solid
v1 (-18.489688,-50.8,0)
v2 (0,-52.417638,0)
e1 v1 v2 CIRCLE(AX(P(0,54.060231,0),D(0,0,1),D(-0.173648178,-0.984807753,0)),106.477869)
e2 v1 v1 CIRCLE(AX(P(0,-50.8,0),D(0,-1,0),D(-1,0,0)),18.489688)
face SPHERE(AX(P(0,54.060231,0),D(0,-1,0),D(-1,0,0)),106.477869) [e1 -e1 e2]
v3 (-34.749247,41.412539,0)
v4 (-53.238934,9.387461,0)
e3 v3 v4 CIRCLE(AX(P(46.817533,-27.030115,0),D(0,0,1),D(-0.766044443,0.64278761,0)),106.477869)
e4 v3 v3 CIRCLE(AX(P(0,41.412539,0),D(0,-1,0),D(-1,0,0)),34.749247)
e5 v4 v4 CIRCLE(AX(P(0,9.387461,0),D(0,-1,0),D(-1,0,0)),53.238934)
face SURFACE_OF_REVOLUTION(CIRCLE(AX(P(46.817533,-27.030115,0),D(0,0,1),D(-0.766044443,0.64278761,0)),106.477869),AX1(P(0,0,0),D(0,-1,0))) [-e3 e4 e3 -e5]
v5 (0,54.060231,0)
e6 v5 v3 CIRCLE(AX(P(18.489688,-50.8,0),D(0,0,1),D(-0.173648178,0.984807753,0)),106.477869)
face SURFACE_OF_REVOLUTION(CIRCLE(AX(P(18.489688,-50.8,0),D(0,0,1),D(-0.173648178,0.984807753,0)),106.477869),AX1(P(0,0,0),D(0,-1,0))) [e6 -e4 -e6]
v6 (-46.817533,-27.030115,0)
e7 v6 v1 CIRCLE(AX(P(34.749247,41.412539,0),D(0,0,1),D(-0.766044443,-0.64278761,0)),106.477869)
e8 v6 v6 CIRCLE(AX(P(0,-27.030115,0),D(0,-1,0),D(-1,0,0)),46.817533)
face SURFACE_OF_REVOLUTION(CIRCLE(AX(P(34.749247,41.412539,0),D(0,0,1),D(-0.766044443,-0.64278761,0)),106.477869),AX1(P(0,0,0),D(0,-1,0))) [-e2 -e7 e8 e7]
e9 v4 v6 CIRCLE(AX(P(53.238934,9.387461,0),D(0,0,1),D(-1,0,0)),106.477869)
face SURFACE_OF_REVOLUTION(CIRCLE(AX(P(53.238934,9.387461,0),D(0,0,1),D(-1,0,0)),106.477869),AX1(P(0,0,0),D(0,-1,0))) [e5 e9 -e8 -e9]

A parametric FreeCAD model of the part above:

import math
import FreeCAD as App
import Part
import Sketcher

V = App.Vector
Q = App.Units.Quantity

doc = App.newDocument("Part")
body = doc.addObject("PartDesign::Body", "Body")

sketch1 = doc.addObject("Sketcher::SketchObject", "Sketch")
body.addObject(sketch1)
sketch1.AttachmentSupport = (doc.XY_Plane, [""])
sketch1.MapMode = "FlatFace"
sketch1.addGeometry([
    Part.ArcOfCircle(Part.Circle(V(18, -51, 0), V(0, 0, 1), 106), math.radians(100), math.radians(120)),
    Part.ArcOfCircle(Part.Circle(V(47, -27, 0), V(0, 0, 1), 106), math.radians(140), math.radians(160)),
    Part.ArcOfCircle(Part.Circle(V(53, 9, 0), V(0, 0, 1), 106), math.radians(180), math.radians(200)),
    Part.ArcOfCircle(Part.Circle(V(35, 41, 0), V(0, 0, 1), 106), math.radians(-140), math.radians(-120)),
    Part.ArcOfCircle(Part.Circle(V(0, 54, 0), V(0, 0, 1), 106), math.radians(-100), math.radians(-90)),
    Part.LineSegment(V(0, -52, 0), V(0, 54, 0)),
], False)
sketch1.addConstraint([
    Sketcher.Constraint("Coincident", 0, 2, 1, 1),
    Sketcher.Constraint("Coincident", 1, 2, 2, 1),
    Sketcher.Constraint("Coincident", 2, 2, 3, 1),
    Sketcher.Constraint("Coincident", 3, 2, 4, 1),
    Sketcher.Constraint("Coincident", 4, 2, 5, 1),
    Sketcher.Constraint("Coincident", 5, 2, 0, 1),
    Sketcher.Constraint("Vertical", 5),
    Sketcher.Constraint("Coincident", 5, 2, 4, 3),
    Sketcher.Constraint("Equal", 0, 1),
    Sketcher.Constraint("Equal", 1, 2),
    Sketcher.Constraint("Equal", 2, 3),
    Sketcher.Constraint("Equal", 3, 4),
    Sketcher.Constraint("PointOnObject", 4, 3, -2),
    Sketcher.Constraint("Horizontal", 3, 3, 0, 2),
    Sketcher.Constraint("Horizontal", 2, 3, 1, 2),
    Sketcher.Constraint("Horizontal", 1, 3, 2, 2),
    Sketcher.Constraint("Horizontal", 0, 3, 3, 2),
    Sketcher.Constraint("DistanceY", 0, 3, -1, 1, Q("50.8 mm")),
    Sketcher.Constraint("Radius", 0, Q("106.477869 mm")),
    Sketcher.Constraint("DistanceX", 1, 3, 2, 3, Q("6.421401 mm")),
    Sketcher.Constraint("DistanceY", 4, 2, 2, 3, Q("61.805099 mm")),
    Sketcher.Constraint("DistanceY", -1, 1, 2, 3, Q("9.387461 mm")),
])
revolution = doc.addObject("PartDesign::Revolution", "Revolution")
body.addObject(revolution)
revolution.Profile = sketch1
revolution.ReferenceAxis = (sketch1, ["V_Axis"])
revolution.Angle = 360

doc.recompute()
